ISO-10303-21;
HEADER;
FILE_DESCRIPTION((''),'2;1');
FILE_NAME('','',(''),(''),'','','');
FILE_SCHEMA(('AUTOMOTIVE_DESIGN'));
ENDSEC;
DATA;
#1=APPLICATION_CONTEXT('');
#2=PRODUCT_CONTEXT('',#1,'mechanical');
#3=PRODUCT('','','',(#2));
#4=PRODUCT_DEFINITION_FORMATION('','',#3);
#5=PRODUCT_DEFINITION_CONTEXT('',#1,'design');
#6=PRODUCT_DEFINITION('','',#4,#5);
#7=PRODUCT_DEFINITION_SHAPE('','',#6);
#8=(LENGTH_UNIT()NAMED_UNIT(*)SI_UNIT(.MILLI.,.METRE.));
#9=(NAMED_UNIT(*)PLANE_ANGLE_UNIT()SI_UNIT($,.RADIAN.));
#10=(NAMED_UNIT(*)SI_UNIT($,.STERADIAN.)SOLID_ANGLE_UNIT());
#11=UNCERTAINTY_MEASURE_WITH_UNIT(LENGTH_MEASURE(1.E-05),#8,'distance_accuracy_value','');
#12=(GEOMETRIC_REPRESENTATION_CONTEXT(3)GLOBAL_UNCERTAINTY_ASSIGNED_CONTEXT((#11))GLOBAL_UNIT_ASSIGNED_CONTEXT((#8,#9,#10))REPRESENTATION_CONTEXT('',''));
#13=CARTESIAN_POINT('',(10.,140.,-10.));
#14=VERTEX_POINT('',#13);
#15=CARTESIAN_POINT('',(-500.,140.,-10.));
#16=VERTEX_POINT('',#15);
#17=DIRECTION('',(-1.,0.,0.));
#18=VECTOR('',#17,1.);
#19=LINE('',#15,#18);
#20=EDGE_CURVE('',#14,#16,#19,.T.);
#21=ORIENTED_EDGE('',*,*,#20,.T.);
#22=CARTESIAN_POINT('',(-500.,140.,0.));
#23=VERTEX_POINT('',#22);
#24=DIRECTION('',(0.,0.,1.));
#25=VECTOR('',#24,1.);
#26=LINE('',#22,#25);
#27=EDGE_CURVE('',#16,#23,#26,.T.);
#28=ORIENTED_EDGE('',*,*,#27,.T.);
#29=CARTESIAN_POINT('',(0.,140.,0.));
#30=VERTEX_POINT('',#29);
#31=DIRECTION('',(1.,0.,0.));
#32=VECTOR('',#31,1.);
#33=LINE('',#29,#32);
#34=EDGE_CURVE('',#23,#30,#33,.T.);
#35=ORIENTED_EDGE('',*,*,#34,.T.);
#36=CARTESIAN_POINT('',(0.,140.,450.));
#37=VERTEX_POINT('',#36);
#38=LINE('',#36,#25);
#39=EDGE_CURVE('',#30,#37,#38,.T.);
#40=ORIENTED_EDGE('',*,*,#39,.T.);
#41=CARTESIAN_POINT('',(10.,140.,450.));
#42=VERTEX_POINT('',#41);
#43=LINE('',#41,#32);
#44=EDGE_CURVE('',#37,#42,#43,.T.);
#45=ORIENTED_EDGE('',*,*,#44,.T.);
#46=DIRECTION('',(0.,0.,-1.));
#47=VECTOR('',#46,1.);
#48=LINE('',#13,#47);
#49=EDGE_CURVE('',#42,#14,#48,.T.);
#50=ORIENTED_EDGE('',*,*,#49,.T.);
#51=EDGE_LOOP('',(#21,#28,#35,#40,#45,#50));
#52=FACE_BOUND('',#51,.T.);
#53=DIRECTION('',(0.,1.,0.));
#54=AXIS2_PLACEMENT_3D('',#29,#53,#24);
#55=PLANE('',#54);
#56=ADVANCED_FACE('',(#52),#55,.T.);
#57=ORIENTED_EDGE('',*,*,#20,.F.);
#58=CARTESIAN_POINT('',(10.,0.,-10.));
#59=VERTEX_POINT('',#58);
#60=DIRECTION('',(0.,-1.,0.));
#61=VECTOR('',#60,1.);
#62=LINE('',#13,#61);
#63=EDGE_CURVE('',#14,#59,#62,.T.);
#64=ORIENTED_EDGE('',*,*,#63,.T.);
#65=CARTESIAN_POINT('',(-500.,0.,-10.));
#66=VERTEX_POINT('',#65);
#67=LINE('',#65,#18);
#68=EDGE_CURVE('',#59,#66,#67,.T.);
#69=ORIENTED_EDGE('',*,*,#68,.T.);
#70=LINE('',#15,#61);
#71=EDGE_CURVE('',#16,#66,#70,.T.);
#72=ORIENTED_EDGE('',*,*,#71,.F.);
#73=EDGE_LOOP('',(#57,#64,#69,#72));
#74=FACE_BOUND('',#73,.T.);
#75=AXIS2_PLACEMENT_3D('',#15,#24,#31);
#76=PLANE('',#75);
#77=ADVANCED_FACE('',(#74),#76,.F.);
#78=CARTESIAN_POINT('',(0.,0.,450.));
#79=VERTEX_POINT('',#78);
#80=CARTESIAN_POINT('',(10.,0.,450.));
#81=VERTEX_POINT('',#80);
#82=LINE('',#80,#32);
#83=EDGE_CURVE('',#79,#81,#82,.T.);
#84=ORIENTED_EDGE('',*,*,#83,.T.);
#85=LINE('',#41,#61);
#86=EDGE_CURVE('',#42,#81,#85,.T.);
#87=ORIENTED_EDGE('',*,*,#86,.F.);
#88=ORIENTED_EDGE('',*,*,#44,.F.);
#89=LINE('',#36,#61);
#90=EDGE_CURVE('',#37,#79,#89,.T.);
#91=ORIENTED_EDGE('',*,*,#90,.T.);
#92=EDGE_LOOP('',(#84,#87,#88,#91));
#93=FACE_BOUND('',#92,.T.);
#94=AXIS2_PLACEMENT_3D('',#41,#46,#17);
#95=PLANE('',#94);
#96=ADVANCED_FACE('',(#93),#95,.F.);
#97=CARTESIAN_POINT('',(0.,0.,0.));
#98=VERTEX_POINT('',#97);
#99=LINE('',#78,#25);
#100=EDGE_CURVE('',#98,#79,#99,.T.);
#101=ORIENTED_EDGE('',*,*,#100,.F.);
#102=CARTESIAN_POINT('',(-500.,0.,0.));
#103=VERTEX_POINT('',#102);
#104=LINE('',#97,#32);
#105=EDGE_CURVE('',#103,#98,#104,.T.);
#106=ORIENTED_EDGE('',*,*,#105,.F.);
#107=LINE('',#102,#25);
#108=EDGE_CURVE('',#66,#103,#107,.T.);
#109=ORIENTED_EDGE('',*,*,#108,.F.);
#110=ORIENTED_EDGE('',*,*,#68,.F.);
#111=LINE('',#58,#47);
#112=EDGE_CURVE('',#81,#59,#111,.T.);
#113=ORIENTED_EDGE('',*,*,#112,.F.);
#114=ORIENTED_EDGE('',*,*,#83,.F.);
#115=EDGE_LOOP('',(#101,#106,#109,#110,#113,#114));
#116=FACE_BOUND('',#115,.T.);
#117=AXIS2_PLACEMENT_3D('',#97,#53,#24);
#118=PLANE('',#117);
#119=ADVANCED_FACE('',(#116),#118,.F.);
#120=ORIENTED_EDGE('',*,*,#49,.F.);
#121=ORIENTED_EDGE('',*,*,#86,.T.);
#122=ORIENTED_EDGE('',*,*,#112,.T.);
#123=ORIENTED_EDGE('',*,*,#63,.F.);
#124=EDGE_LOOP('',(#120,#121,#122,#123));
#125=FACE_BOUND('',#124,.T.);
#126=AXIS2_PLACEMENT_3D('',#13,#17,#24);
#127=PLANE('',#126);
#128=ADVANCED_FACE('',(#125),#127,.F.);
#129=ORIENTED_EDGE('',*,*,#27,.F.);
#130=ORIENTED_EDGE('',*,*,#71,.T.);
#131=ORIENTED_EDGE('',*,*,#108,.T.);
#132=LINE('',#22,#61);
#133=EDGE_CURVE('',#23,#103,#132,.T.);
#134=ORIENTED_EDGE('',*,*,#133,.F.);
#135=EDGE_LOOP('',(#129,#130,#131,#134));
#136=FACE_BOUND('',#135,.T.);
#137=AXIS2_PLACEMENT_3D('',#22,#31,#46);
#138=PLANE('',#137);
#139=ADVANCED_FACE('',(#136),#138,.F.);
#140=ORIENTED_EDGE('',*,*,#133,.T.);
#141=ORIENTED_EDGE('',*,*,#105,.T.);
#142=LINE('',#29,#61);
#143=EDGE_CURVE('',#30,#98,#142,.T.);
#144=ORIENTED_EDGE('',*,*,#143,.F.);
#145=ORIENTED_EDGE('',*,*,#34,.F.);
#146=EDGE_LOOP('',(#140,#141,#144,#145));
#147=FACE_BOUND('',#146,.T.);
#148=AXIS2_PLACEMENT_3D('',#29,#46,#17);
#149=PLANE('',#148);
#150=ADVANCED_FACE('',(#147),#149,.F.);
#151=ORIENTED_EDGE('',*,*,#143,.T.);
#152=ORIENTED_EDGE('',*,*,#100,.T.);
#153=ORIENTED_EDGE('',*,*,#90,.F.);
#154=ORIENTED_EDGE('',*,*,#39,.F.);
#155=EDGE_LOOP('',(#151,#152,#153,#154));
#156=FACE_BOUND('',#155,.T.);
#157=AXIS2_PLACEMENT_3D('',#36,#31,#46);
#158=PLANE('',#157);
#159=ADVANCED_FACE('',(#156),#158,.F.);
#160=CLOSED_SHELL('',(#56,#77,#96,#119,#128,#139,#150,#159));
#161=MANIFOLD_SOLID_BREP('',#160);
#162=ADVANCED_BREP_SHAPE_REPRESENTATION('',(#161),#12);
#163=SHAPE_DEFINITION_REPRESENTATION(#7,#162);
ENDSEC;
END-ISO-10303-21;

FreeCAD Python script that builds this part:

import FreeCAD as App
import Part
import Sketcher


def add_polygon(sketch, points):
    """Adds a closed chain of lines whose ends are joined by coincident constraints."""
    first, n = sketch.GeometryCount, len(points)
    for a, b in zip(points, points[1:] + points[:1]):
        sketch.addGeometry(Part.LineSegment(App.Vector(*a, 0), App.Vector(*b, 0)), False)
    for i in range(n):
        sketch.addConstraint(Sketcher.Constraint("Coincident", first + i, 2, first + (i + 1) % n, 1))

doc = App.newDocument("Part")
body = doc.addObject("PartDesign::Body", "Body")

sketch1 = body.newObject("Sketcher::SketchObject", "Sketch")
sketch1.AttachmentSupport = (doc.getObject("XZ_Plane"), [""])
sketch1.MapMode = "FlatFace"
add_polygon(sketch1, [(-500, 0), (0, 0), (0, 450), (10, 450), (10, -10), (-500, -10)])
sketch1.addConstraint([
    Sketcher.Constraint("Horizontal", 0),
    Sketcher.Constraint("Vertical", 1),
    Sketcher.Constraint("Horizontal", 2),
    Sketcher.Constraint("Vertical", 3),
    Sketcher.Constraint("Horizontal", 4),
    Sketcher.Constraint("Vertical", 5),
    Sketcher.Constraint("Coincident", 0, 2, -1, 1),
    Sketcher.Constraint("Equal", 2, 5),
    Sketcher.Constraint("DistanceX", 0, 1, 0, 2, 500.0),
    Sketcher.Constraint("DistanceX", 2, 1, 2, 2, 10.0),
    Sketcher.Constraint("DistanceY", 1, 1, 1, 2, 450.0),
])
pad1 = body.newObject("PartDesign::Pad", "Pad")
pad1.Profile = sketch1
pad1.Length = 140
pad1.Reversed = True

doc.recompute()
